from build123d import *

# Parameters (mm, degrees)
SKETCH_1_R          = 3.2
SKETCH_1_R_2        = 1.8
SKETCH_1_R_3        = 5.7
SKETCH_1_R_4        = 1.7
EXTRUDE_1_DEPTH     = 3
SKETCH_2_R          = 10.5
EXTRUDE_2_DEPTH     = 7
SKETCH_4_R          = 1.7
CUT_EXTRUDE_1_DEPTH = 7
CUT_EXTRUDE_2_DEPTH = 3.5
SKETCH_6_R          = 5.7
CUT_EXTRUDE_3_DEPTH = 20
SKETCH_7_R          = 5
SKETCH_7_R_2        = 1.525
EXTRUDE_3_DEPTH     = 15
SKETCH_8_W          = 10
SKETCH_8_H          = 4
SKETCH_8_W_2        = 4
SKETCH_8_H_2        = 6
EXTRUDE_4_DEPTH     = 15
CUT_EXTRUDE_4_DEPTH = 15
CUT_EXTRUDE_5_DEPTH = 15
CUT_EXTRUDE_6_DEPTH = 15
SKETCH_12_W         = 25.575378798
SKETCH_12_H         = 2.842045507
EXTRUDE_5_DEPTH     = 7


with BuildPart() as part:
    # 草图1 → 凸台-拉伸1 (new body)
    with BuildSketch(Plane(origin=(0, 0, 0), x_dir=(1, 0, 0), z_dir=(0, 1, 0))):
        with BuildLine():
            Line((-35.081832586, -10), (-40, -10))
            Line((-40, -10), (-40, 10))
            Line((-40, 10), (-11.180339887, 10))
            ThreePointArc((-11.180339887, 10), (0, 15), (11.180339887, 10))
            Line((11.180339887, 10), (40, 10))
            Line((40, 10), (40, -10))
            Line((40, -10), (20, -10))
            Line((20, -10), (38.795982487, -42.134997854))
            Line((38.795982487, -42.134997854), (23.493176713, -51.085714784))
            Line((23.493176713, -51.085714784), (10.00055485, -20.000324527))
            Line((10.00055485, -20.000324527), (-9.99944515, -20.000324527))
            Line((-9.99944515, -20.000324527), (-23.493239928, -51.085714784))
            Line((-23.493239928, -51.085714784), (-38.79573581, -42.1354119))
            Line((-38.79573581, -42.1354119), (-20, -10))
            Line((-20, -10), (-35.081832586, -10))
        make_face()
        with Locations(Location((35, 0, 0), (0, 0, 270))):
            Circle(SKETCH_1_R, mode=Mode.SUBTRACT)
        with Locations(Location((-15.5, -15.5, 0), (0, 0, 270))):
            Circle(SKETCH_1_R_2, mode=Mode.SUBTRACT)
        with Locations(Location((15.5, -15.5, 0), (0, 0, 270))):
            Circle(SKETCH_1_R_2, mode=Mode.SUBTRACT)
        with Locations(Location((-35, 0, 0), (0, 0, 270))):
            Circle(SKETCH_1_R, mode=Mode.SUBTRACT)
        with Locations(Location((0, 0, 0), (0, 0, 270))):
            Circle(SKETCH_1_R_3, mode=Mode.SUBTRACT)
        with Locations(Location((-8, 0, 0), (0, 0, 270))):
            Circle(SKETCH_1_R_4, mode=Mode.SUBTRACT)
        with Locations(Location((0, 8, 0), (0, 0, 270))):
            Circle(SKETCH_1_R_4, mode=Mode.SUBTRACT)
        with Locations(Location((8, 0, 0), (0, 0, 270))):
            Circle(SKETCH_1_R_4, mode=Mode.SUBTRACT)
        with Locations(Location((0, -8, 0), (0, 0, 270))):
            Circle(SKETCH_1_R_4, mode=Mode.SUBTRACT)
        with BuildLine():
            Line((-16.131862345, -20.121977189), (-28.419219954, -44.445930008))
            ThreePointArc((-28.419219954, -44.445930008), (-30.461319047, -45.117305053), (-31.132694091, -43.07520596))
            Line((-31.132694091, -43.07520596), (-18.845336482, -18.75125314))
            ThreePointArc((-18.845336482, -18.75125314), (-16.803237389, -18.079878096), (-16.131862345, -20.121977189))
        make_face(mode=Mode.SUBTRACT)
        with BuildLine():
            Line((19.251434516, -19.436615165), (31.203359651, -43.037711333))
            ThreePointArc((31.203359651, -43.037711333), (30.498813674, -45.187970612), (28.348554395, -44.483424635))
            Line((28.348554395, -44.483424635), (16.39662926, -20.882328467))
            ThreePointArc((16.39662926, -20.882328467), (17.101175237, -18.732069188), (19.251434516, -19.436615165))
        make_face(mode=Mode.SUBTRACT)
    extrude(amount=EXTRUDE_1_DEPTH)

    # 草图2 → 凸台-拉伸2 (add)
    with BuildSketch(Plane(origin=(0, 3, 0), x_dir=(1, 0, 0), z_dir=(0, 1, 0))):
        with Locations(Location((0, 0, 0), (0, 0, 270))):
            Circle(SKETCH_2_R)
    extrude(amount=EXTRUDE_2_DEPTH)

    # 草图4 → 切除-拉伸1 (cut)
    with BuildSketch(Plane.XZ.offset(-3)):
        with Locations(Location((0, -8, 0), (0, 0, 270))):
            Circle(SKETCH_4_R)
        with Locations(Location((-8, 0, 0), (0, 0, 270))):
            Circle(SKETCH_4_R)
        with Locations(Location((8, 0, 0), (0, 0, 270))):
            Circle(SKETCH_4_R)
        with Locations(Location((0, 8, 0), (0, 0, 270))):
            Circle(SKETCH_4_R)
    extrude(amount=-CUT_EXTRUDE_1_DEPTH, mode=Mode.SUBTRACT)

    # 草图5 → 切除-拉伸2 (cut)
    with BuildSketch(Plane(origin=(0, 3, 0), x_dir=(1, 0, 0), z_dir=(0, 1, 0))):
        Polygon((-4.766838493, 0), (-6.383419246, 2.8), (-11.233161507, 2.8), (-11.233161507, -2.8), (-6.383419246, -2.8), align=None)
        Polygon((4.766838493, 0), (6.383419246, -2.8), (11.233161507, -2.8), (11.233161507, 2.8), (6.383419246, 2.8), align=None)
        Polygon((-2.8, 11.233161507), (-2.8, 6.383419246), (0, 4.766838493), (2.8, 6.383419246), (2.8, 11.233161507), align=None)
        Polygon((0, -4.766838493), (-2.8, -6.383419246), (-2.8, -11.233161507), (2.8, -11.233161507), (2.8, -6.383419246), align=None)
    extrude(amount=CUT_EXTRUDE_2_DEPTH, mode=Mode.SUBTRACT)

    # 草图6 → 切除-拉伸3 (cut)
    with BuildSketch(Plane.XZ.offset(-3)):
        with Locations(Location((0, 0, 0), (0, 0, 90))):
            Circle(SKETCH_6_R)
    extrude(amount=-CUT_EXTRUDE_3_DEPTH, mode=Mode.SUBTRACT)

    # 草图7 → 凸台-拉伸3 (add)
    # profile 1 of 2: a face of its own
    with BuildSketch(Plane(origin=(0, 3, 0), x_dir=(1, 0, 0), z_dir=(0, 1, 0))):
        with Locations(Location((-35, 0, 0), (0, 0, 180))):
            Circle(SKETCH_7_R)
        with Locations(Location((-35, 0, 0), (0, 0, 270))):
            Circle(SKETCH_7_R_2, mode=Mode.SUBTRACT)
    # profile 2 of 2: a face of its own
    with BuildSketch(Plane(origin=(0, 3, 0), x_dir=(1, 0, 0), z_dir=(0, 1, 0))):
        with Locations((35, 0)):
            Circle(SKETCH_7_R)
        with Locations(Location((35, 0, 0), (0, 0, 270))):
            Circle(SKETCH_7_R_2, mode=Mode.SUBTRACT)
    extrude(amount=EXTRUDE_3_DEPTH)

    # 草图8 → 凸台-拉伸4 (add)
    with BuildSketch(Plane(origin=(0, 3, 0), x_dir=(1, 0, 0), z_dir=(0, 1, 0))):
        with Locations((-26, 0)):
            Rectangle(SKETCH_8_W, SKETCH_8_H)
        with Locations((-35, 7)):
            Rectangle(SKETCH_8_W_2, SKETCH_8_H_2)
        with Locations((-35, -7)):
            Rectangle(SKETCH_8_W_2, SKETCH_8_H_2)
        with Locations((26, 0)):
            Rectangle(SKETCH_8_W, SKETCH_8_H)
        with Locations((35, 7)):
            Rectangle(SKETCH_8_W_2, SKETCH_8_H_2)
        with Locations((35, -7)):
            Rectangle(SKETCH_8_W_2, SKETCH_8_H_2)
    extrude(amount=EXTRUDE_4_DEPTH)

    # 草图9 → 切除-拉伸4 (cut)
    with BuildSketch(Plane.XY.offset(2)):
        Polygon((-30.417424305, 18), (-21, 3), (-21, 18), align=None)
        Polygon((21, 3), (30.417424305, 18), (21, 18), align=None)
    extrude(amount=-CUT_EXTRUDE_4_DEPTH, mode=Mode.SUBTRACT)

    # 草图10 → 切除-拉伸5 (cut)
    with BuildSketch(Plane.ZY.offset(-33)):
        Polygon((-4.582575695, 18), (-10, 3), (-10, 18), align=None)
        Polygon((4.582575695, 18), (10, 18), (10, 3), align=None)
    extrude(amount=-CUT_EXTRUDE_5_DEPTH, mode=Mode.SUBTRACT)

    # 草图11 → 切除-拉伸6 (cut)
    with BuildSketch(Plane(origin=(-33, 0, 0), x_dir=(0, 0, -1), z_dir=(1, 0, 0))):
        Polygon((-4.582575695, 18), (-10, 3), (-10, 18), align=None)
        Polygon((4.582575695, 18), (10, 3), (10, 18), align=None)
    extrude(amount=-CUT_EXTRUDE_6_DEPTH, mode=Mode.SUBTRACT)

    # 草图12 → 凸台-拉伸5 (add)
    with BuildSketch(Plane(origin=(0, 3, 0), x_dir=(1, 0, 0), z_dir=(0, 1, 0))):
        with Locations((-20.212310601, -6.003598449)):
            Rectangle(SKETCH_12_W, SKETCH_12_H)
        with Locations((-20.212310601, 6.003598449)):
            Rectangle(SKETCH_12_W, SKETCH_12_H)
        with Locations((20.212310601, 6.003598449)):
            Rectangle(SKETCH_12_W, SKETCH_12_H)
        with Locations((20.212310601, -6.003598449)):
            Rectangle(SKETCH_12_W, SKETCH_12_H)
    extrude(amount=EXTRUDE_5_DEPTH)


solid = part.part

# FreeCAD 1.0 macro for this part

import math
import FreeCAD as App
import Part
import Sketcher
from FreeCAD import Vector
Q = App.Units.Quantity

doc = App.newDocument("Part")
params = doc.addObject("Spreadsheet::Sheet", "Params")
for row, (alias, value) in enumerate([
    ("sketch1_radius", "15 mm"),
    ("sketch1_diameter", "3.6 mm"),
    ("sketch1_diameter2", "3.4 mm"),
    ("sketch1_diameter3", "6.4 mm"),
    ("sketch1_diameter4", "11.4 mm"),
    ("pad1_length", "3 mm"),
    ("sketch2_diameter", "21 mm"),
    ("pad2_length", "7 mm"),
    ("sketch3_diameter", "3.4 mm"),
    ("pocket1_length", "7 mm"),
    ("sketch4_width", "5.6 mm"),
    ("pocket2_length", "3.5 mm"),
    ("sketch5_diameter", "11.4 mm"),
    ("pocket3_length", "20 mm"),
    ("sketch6_diameter", "10 mm"),
    ("sketch6_diameter2", "3.05 mm"),
    ("pad3_length", "15 mm"),
    ("sketch7_width", "10 mm"),
    ("sketch7_width2", "4 mm"),
    ("sketch7_height", "6 mm"),
    ("pad4_length", "15 mm"),
    ("sketch8_height", "15 mm"),
    ("pocket4_length", "15 mm"),
    ("sketch9_width", "15 mm"),
    ("pocket5_length", "15 mm"),
    ("sketch10_width", "15 mm"),
    ("pocket6_length", "15 mm"),
    ("pad5_length", "7 mm"),
], start=1):
    params.set(f"A{row}", alias)
    params.set(f"B{row}", "=" + value)
    params.setAlias(f"B{row}", alias)

body = doc.addObject("PartDesign::Body", "Body")

sketch1 = doc.addObject("Sketcher::SketchObject", "Sketch")
body.addObject(sketch1)
sketch1.AttachmentSupport = (doc.XZ_Plane, [""])
sketch1.MapMode = "FlatFace"
sketch1.addGeometry(Part.LineSegment(Vector(-40, -10, 0), Vector(-40, 10, 0)), False)
sketch1.addGeometry(Part.LineSegment(Vector(-40, 10, 0), Vector(-20, 10, 0)), False)
sketch1.addGeometry(Part.LineSegment(Vector(-20, 10, 0), Vector(-38.8, 42.1, 0)), False)
sketch1.addGeometry(Part.LineSegment(Vector(-38.8, 42.1, 0), Vector(-23.5, 51.1, 0)), False)
sketch1.addGeometry(Part.LineSegment(Vector(-23.5, 51.1, 0), Vector(-10, 20, 0)), False)
sketch1.addGeometry(Part.LineSegment(Vector(-10, 20, 0), Vector(10, 20, 0)), False)
sketch1.addGeometry(Part.LineSegment(Vector(10, 20, 0), Vector(23.5, 51.1, 0)), False)
sketch1.addGeometry(Part.LineSegment(Vector(23.5, 51.1, 0), Vector(38.8, 42.1, 0)), False)
sketch1.addGeometry(Part.LineSegment(Vector(38.8, 42.1, 0), Vector(20, 10, 0)), False)
sketch1.addGeometry(Part.LineSegment(Vector(20, 10, 0), Vector(40, 10, 0)), False)
sketch1.addGeometry(Part.LineSegment(Vector(40, 10, 0), Vector(40, -10, 0)), False)
sketch1.addGeometry(Part.LineSegment(Vector(40, -10, 0), Vector(11.2, -10, 0)), False)
sketch1.addGeometry(Part.ArcOfCircle(Part.Circle(Vector(0, 0, 0), Vector(0, 0, 1), 15), math.radians(-138), math.radians(-42)), False)
sketch1.addGeometry(Part.LineSegment(Vector(-11.2, -10, 0), Vector(-40, -10, 0)), False)
sketch1.addGeometry(Part.LineSegment(Vector(19.3, 19.4, 0), Vector(31.2, 43, 0)), False)
sketch1.addGeometry(Part.ArcOfCircle(Part.Circle(Vector(29.8, 43.8, 0), Vector(0, 0, 1), 1.6), math.radians(-27), math.radians(153)), False)
sketch1.addGeometry(Part.LineSegment(Vector(28.3, 44.5, 0), Vector(16.4, 20.9, 0)), False)
sketch1.addGeometry(Part.ArcOfCircle(Part.Circle(Vector(17.8, 20.2, 0), Vector(0, 0, 1), 1.6), math.radians(153), math.radians(333)), False)
sketch1.addGeometry(Part.LineSegment(Vector(-16.1, 20.1, 0), Vector(-28.4, 44.4, 0)), False)
sketch1.addGeometry(Part.ArcOfCircle(Part.Circle(Vector(-29.8, 43.8, 0), Vector(0, 0, 1), 1.5), math.radians(27), math.radians(207)), False)
sketch1.addGeometry(Part.LineSegment(Vector(-31.1, 43.1, 0), Vector(-18.8, 18.8, 0)), False)
sketch1.addGeometry(Part.ArcOfCircle(Part.Circle(Vector(-17.5, 19.4, 0), Vector(0, 0, 1), 1.5), math.radians(-153), math.radians(27)), False)
sketch1.addGeometry(Part.Circle(Vector(15.5, 15.5, 0), Vector(0, 0, 1), 1.8), False)
sketch1.addGeometry(Part.Circle(Vector(0, 8, 0), Vector(0, 0, 1), 1.7), False)
sketch1.addGeometry(Part.Circle(Vector(35, 0, 0), Vector(0, 0, 1), 3.2), False)
sketch1.addGeometry(Part.Circle(Vector(8, 0, 0), Vector(0, 0, 1), 1.7), False)
sketch1.addGeometry(Part.Circle(Vector(0, 0, 0), Vector(0, 0, 1), 5.7), False)
sketch1.addGeometry(Part.Circle(Vector(0, -8, 0), Vector(0, 0, 1), 1.7), False)
sketch1.addGeometry(Part.Circle(Vector(-15.5, 15.5, 0), Vector(0, 0, 1), 1.8), False)
sketch1.addGeometry(Part.Circle(Vector(-8, 0, 0), Vector(0, 0, 1), 1.7), False)
sketch1.addGeometry(Part.Circle(Vector(-35, 0, 0), Vector(0, 0, 1), 3.2), False)
sketch1.addConstraint(Sketcher.Constraint("Coincident", 0, 2, 1, 1))
sketch1.addConstraint(Sketcher.Constraint("Coincident", 1, 2, 2, 1))
sketch1.addConstraint(Sketcher.Constraint("Coincident", 2, 2, 3, 1))
sketch1.addConstraint(Sketcher.Constraint("Coincident", 3, 2, 4, 1))
sketch1.addConstraint(Sketcher.Constraint("Coincident", 4, 2, 5, 1))
sketch1.addConstraint(Sketcher.Constraint("Coincident", 5, 2, 6, 1))
sketch1.addConstraint(Sketcher.Constraint("Coincident", 6, 2, 7, 1))
sketch1.addConstraint(Sketcher.Constraint("Coincident", 7, 2, 8, 1))
sketch1.addConstraint(Sketcher.Constraint("Coincident", 8, 2, 9, 1))
sketch1.addConstraint(Sketcher.Constraint("Coincident", 9, 2, 10, 1))
sketch1.addConstraint(Sketcher.Constraint("Coincident", 10, 2, 11, 1))
sketch1.addConstraint(Sketcher.Constraint("Coincident", 11, 2, 12, 2))
sketch1.addConstraint(Sketcher.Constraint("Coincident", 12, 1, 13, 1))
sketch1.addConstraint(Sketcher.Constraint("Coincident", 13, 2, 0, 1))
sketch1.addConstraint(Sketcher.Constraint("Tangent", 14, 2, 15, 1))
sketch1.addConstraint(Sketcher.Constraint("Tangent", 15, 2, 16, 1))
sketch1.addConstraint(Sketcher.Constraint("Tangent", 16, 2, 17, 1))
sketch1.addConstraint(Sketcher.Constraint("Tangent", 17, 2, 14, 1))
sketch1.addConstraint(Sketcher.Constraint("Tangent", 18, 2, 19, 1))
sketch1.addConstraint(Sketcher.Constraint("Tangent", 19, 2, 20, 1))
sketch1.addConstraint(Sketcher.Constraint("Tangent", 20, 2, 21, 1))
sketch1.addConstraint(Sketcher.Constraint("Tangent", 21, 2, 18, 1))
sketch1.addConstraint(Sketcher.Constraint("Vertical", 0))
sketch1.addConstraint(Sketcher.Constraint("Horizontal", 1))
sketch1.addConstraint(Sketcher.Constraint("Horizontal", 5))
sketch1.addConstraint(Sketcher.Constraint("Horizontal", 9))
sketch1.addConstraint(Sketcher.Constraint("Vertical", 10))
sketch1.addConstraint(Sketcher.Constraint("Horizontal", 11))
sketch1.addConstraint(Sketcher.Constraint("Horizontal", 13))
sketch1.addConstraint(Sketcher.Constraint("Coincident", 12, 3, -1, 1))
sketch1.addConstraint(Sketcher.Constraint("Coincident", 26, 3, -1, 1))
sketch1.addConstraint(Sketcher.Constraint("Equal", 15, 17))
sketch1.addConstraint(Sketcher.Constraint("Equal", 19, 21))
sketch1.addConstraint(Sketcher.Constraint("Equal", 23, 25))
sketch1.addConstraint(Sketcher.Constraint("Equal", 25, 27))
sketch1.addConstraint(Sketcher.Constraint("Equal", 22, 28))
sketch1.addConstraint(Sketcher.Constraint("Equal", 27, 29))
sketch1.addConstraint(Sketcher.Constraint("Equal", 24, 30))
sketch1.addConstraint(Sketcher.Constraint("Symmetric", 23, 3, 27, 3, -1, 1))
sketch1.addConstraint(Sketcher.Constraint("Symmetric", 25, 3, 29, 3, -1, 1))
sketch1.addConstraint(Sketcher.Constraint("Symmetric", 24, 3, 30, 3, -1, 1))
sketch1.addConstraint(Sketcher.Constraint("Symmetric", 0, 2, 10, 2, -1, 1))
sketch1.addConstraint(Sketcher.Constraint("Symmetric", 15, 3, 19, 3, -2))
sketch1.addConstraint(Sketcher.Constraint("Symmetric", 22, 3, 28, 3, -2))
sketch1.addConstraint(Sketcher.Constraint("Symmetric", 1, 2, 8, 2, -2))
sketch1.addConstraint(Sketcher.Constraint("PointOnObject", 23, 3, -2))
sketch1.addConstraint(Sketcher.Constraint("PointOnObject", 24, 3, -1))
sketch1.addConstraint(Sketcher.Constraint("PointOnObject", 25, 3, -1))
sketch1.addConstraint(Sketcher.Constraint("Perpendicular", 2, 3))
sketch1.addConstraint(Sketcher.Constraint("Perpendicular", 7, 8))
sketch1.addConstraint(Sketcher.Constraint("Horizontal", 3, 2, 6, 2))
sketch1.addConstraint(Sketcher.Constraint("Horizontal", 11, 2, 12, 1))
sketch1.addConstraint(Sketcher.Constraint("Horizontal", 21, 3, 17, 2))
sketch1.addConstraint(Sketcher.Constraint("Equal", 1, 5))
sketch1.addConstraint(Sketcher.Constraint("Equal", 9, 0))
sketch1.addConstraint(Sketcher.Constraint("Radius", 12, Q("15 mm")))
sketch1.addConstraint(Sketcher.Constraint("Diameter", 22, Q("3.6 mm")))
sketch1.addConstraint(Sketcher.Constraint("Diameter", 23, Q("3.4 mm")))
sketch1.addConstraint(Sketcher.Constraint("Diameter", 24, Q("6.4 mm")))
sketch1.addConstraint(Sketcher.Constraint("Diameter", 26, Q("11.4 mm")))
sketch1.addConstraint(Sketcher.Constraint("Radius", 15, Q("1.6 mm")))
sketch1.addConstraint(Sketcher.Constraint("DistanceX", 1, 1, 1, 2, Q("20 mm")))
sketch1.addConstraint(Sketcher.Constraint("DistanceY", -1, 1, 23, 3, Q("8 mm")))
sketch1.addConstraint(Sketcher.Constraint("DistanceX", -1, 1, 24, 3, Q("35 mm")))
sketch1.addConstraint(Sketcher.Constraint("DistanceX", -1, 1, 25, 3, Q("8 mm")))
sketch1.addConstraint(Sketcher.Constraint("DistanceX", 0, 2, -1, 1, Q("40 mm")))
sketch1.addConstraint(Sketcher.Constraint("DistanceX", -1, 1, 22, 3, Q("15.5 mm")))
sketch1.addConstraint(Sketcher.Constraint("DistanceY", -1, 1, 22, 3, Q("15.5 mm")))
sketch1.addConstraint(Sketcher.Constraint("Radius", 19, Q("1.520019 mm")))
sketch1.addConstraint(Sketcher.Constraint("DistanceX", 21, 3, -1, 1, Q("17.488599 mm")))
sketch1.addConstraint(Sketcher.Constraint("DistanceY", 21, 3, 3, 2, Q("31.6491 mm")))
sketch1.addConstraint(Sketcher.Constraint("Distance", 7, Q("17.72826 mm")))
sketch1.addConstraint(Sketcher.Constraint("Distance", 8, Q("37.22831 mm")))
sketch1.addConstraint(Sketcher.Constraint("Distance", 18, Q("27.251309 mm")))
sketch1.addConstraint(Sketcher.Constraint("DistanceX", -1, 1, 17, 3, Q("17.824032 mm")))
sketch1.addConstraint(Sketcher.Constraint("DistanceY", -1, 1, 17, 3, Q("20.159472 mm")))
sketch1.addConstraint(Sketcher.Constraint("DistanceY", -1, 1, 2, 2, Q("42.135412 mm")))
sketch1.addConstraint(Sketcher.Constraint("DistanceX", 3, 2, -1, 1, Q("23.49324 mm")))
sketch1.addConstraint(Sketcher.Constraint("DistanceX", -1, 1, 14, 2, Q("31.20336 mm")))
sketch1.addConstraint(Sketcher.Constraint("DistanceY", 21, 3, 4, 2, Q("0.563709 mm")))
sketch1.addConstraint(Sketcher.Constraint("DistanceX", 5, 2, 6, 2, Q("13.492622 mm")))
sketch1.setExpression("Constraints[55]", "Params.sketch1_radius")
sketch1.setExpression("Constraints[56]", "Params.sketch1_diameter")
sketch1.setExpression("Constraints[57]", "Params.sketch1_diameter2")
sketch1.setExpression("Constraints[58]", "Params.sketch1_diameter3")
sketch1.setExpression("Constraints[59]", "Params.sketch1_diameter4")
pad1 = doc.addObject("PartDesign::Pad", "Pad")
body.addObject(pad1)
pad1.Profile = sketch1
pad1.setExpression("Length", "Params.pad1_length")
pad1.Reversed = True

sketch2 = doc.addObject("Sketcher::SketchObject", "Sketch001")
body.addObject(sketch2)
sketch2.AttachmentSupport = (doc.XZ_Plane, [""])
sketch2.MapMode = "FlatFace"
sketch2.AttachmentOffset = App.Placement(Vector(0, 0, -3), App.Rotation())
sketch2.addGeometry(Part.Circle(Vector(0, 0, 0), Vector(0, 0, 1), 10), False)
sketch2.addConstraint(Sketcher.Constraint("Coincident", 0, 3, -1, 1))
sketch2.addConstraint(Sketcher.Constraint("Diameter", 0, Q("21 mm")))
sketch2.setExpression("Constraints[1]", "Params.sketch2_diameter")
pad2 = doc.addObject("PartDesign::Pad", "Pad001")
body.addObject(pad2)
pad2.Profile = sketch2
pad2.setExpression("Length", "Params.pad2_length")
pad2.Reversed = True

sketch3 = doc.addObject("Sketcher::SketchObject", "Sketch002")
body.addObject(sketch3)
sketch3.AttachmentSupport = (doc.XZ_Plane, [""])
sketch3.MapMode = "FlatFace"
sketch3.AttachmentOffset = App.Placement(Vector(0, 0, -3), App.Rotation())
sketch3.addGeometry(Part.Circle(Vector(0, -8, 0), Vector(0, 0, 1), 1.7), False)
sketch3.addGeometry(Part.Circle(Vector(-8, 0, 0), Vector(0, 0, 1), 1.7), False)
sketch3.addGeometry(Part.Circle(Vector(8, 0, 0), Vector(0, 0, 1), 1.7), False)
sketch3.addGeometry(Part.Circle(Vector(0, 8, 0), Vector(0, 0, 1), 1.7), False)
sketch3.addConstraint(Sketcher.Constraint("Equal", 0, 1))
sketch3.addConstraint(Sketcher.Constraint("Equal", 1, 2))
sketch3.addConstraint(Sketcher.Constraint("Equal", 2, 3))
sketch3.addConstraint(Sketcher.Constraint("Symmetric", 1, 3, 2, 3, -1, 1))
sketch3.addConstraint(Sketcher.Constraint("Symmetric", 0, 3, 3, 3, -1, 1))
sketch3.addConstraint(Sketcher.Constraint("PointOnObject", 0, 3, -2))
sketch3.addConstraint(Sketcher.Constraint("PointOnObject", 1, 3, -1))
sketch3.addConstraint(Sketcher.Constraint("Diameter", 0, Q("3.4 mm")))
sketch3.addConstraint(Sketcher.Constraint("DistanceY", 0, 3, -1, 1, Q("8 mm")))
sketch3.addConstraint(Sketcher.Constraint("DistanceX", 1, 3, -1, 1, Q("8 mm")))
sketch3.setExpression("Constraints[7]", "Params.sketch3_diameter")
pocket1 = doc.addObject("PartDesign::Pocket", "Pocket")
body.addObject(pocket1)
pocket1.Profile = sketch3
pocket1.setExpression("Length", "Params.pocket1_length")

sketch4 = doc.addObject("Sketcher::SketchObject", "Sketch003")
body.addObject(sketch4)
sketch4.AttachmentSupport = (doc.XZ_Plane, [""])
sketch4.MapMode = "FlatFace"
sketch4.AttachmentOffset = App.Placement(Vector(0, 0, -3), App.Rotation())
sketch4.addGeometry(Part.LineSegment(Vector(-4.8, 0, 0), Vector(-6.4, -2.8, 0)), False)
sketch4.addGeometry(Part.LineSegment(Vector(-6.4, -2.8, 0), Vector(-11.2, -2.8, 0)), False)
sketch4.addGeometry(Part.LineSegment(Vector(-11.2, -2.8, 0), Vector(-11.2, 2.8, 0)), False)
sketch4.addGeometry(Part.LineSegment(Vector(-11.2, 2.8, 0), Vector(-6.4, 2.8, 0)), False)
sketch4.addGeometry(Part.LineSegment(Vector(-6.4, 2.8, 0), Vector(-4.8, 0, 0)), False)
sketch4.addGeometry(Part.LineSegment(Vector(4.8, 0, 0), Vector(6.4, 2.8, 0)), False)
sketch4.addGeometry(Part.LineSegment(Vector(6.4, 2.8, 0), Vector(11.2, 2.8, 0)), False)
sketch4.addGeometry(Part.LineSegment(Vector(11.2, 2.8, 0), Vector(11.2, -2.8, 0)), False)
sketch4.addGeometry(Part.LineSegment(Vector(11.2, -2.8, 0), Vector(6.4, -2.8, 0)), False)
sketch4.addGeometry(Part.LineSegment(Vector(6.4, -2.8, 0), Vector(4.8, 0, 0)), False)
sketch4.addGeometry(Part.LineSegment(Vector(-2.8, -11.2, 0), Vector(-2.8, -6.4, 0)), False)
sketch4.addGeometry(Part.LineSegment(Vector(-2.8, -6.4, 0), Vector(0, -4.8, 0)), False)
sketch4.addGeometry(Part.LineSegment(Vector(0, -4.8, 0), Vector(2.8, -6.4, 0)), False)
sketch4.addGeometry(Part.LineSegment(Vector(2.8, -6.4, 0), Vector(2.8, -11.2, 0)), False)
sketch4.addGeometry(Part.LineSegment(Vector(2.8, -11.2, 0), Vector(-2.8, -11.2, 0)), False)
sketch4.addGeometry(Part.LineSegment(Vector(0, 4.8, 0), Vector(-2.8, 6.4, 0)), False)
sketch4.addGeometry(Part.LineSegment(Vector(-2.8, 6.4, 0), Vector(-2.8, 11.2, 0)), False)
sketch4.addGeometry(Part.LineSegment(Vector(-2.8, 11.2, 0), Vector(2.8, 11.2, 0)), False)
sketch4.addGeometry(Part.LineSegment(Vector(2.8, 11.2, 0), Vector(2.8, 6.4, 0)), False)
sketch4.addGeometry(Part.LineSegment(Vector(2.8, 6.4, 0), Vector(0, 4.8, 0)), False)
sketch4.addConstraint(Sketcher.Constraint("Coincident", 0, 2, 1, 1))
sketch4.addConstraint(Sketcher.Constraint("Coincident", 1, 2, 2, 1))
sketch4.addConstraint(Sketcher.Constraint("Coincident", 2, 2, 3, 1))
sketch4.addConstraint(Sketcher.Constraint("Coincident", 3, 2, 4, 1))
sketch4.addConstraint(Sketcher.Constraint("Coincident", 4, 2, 0, 1))
sketch4.addConstraint(Sketcher.Constraint("Coincident", 5, 2, 6, 1))
sketch4.addConstraint(Sketcher.Constraint("Coincident", 6, 2, 7, 1))
sketch4.addConstraint(Sketcher.Constraint("Coincident", 7, 2, 8, 1))
sketch4.addConstraint(Sketcher.Constraint("Coincident", 8, 2, 9, 1))
sketch4.addConstraint(Sketcher.Constraint("Coincident", 9, 2, 5, 1))
sketch4.addConstraint(Sketcher.Constraint("Coincident", 10, 2, 11, 1))
sketch4.addConstraint(Sketcher.Constraint("Coincident", 11, 2, 12, 1))
sketch4.addConstraint(Sketcher.Constraint("Coincident", 12, 2, 13, 1))
sketch4.addConstraint(Sketcher.Constraint("Coincident", 13, 2, 14, 1))
sketch4.addConstraint(Sketcher.Constraint("Coincident", 14, 2, 10, 1))
sketch4.addConstraint(Sketcher.Constraint("Coincident", 15, 2, 16, 1))
sketch4.addConstraint(Sketcher.Constraint("Coincident", 16, 2, 17, 1))
sketch4.addConstraint(Sketcher.Constraint("Coincident", 17, 2, 18, 1))
sketch4.addConstraint(Sketcher.Constraint("Coincident", 18, 2, 19, 1))
sketch4.addConstraint(Sketcher.Constraint("Coincident", 19, 2, 15, 1))
sketch4.addConstraint(Sketcher.Constraint("Horizontal", 1))
sketch4.addConstraint(Sketcher.Constraint("Vertical", 2))
sketch4.addConstraint(Sketcher.Constraint("Horizontal", 3))
sketch4.addConstraint(Sketcher.Constraint("Horizontal", 6))
sketch4.addConstraint(Sketcher.Constraint("Vertical", 7))
sketch4.addConstraint(Sketcher.Constraint("Horizontal", 8))
sketch4.addConstraint(Sketcher.Constraint("Vertical", 10))
sketch4.addConstraint(Sketcher.Constraint("Vertical", 13))
sketch4.addConstraint(Sketcher.Constraint("Horizontal", 14))
sketch4.addConstraint(Sketcher.Constraint("Vertical", 16))
sketch4.addConstraint(Sketcher.Constraint("Horizontal", 17))
sketch4.addConstraint(Sketcher.Constraint("Vertical", 18))
sketch4.addConstraint(Sketcher.Constraint("Symmetric", 0, 2, 5, 2, -1, 1))
sketch4.addConstraint(Sketcher.Constraint("Symmetric", 2, 2, 7, 2, -1, 1))
sketch4.addConstraint(Sketcher.Constraint("Symmetric", 4, 2, 9, 2, -1, 1))
sketch4.addConstraint(Sketcher.Constraint("Symmetric", 12, 2, 15, 2, -1, 1))
sketch4.addConstraint(Sketcher.Constraint("Symmetric", 14, 2, 17, 2, -1, 1))
sketch4.addConstraint(Sketcher.Constraint("Symmetric", 11, 2, 19, 2, -1, 1))
sketch4.addConstraint(Sketcher.Constraint("Symmetric", 3, 2, 5, 2, -2))
sketch4.addConstraint(Sketcher.Constraint("Symmetric", 10, 2, 12, 2, -2))
sketch4.addConstraint(Sketcher.Constraint("PointOnObject", 4, 2, -1))
sketch4.addConstraint(Sketcher.Constraint("PointOnObject", 11, 2, -2))
sketch4.addConstraint(Sketcher.Constraint("Parallel", 4, 9))
sketch4.addConstraint(Sketcher.Constraint("Perpendicular", 9, 11))
sketch4.addConstraint(Sketcher.Constraint("Parallel", 11, 19))
sketch4.addConstraint(Sketcher.Constraint("Equal", 17, 2))
sketch4.addConstraint(Sketcher.Constraint("Equal", 8, 10))
sketch4.addConstraint(Sketcher.Constraint("Angle", 0, Q("-120 deg")))
sketch4.addConstraint(Sketcher.Constraint("DistanceX", 14, 2, 14, 1, Q("5.6 mm")))
sketch4.addConstraint(Sketcher.Constraint("DistanceX", 4, 2, 6, 2, Q("16 mm")))
sketch4.addConstraint(Sketcher.Constraint("DistanceX", 1, 2, 1, 1, Q("4.849742 mm")))
sketch4.addConstraint(Sketcher.Constraint("DistanceY", 10, 2, -1, 1, Q("6.383419 mm")))
sketch4.setExpression("Constraints[48]", "Params.sketch4_width")
pocket2 = doc.addObject("PartDesign::Pocket", "Pocket001")
body.addObject(pocket2)
pocket2.Profile = sketch4
pocket2.setExpression("Length", "Params.pocket2_length")

sketch5 = doc.addObject("Sketcher::SketchObject", "Sketch004")
body.addObject(sketch5)
sketch5.AttachmentSupport = (doc.XZ_Plane, [""])
sketch5.MapMode = "FlatFace"
sketch5.AttachmentOffset = App.Placement(Vector(0, 0, -3), App.Rotation())
sketch5.addGeometry(Part.Circle(Vector(0, 0, 0), Vector(0, 0, 1), 6), False)
sketch5.addConstraint(Sketcher.Constraint("Coincident", 0, 3, -1, 1))
sketch5.addConstraint(Sketcher.Constraint("Diameter", 0, Q("11.4 mm")))
sketch5.setExpression("Constraints[1]", "Params.sketch5_diameter")
pocket3 = doc.addObject("PartDesign::Pocket", "Pocket002")
body.addObject(pocket3)
pocket3.Profile = sketch5
pocket3.setExpression("Length", "Params.pocket3_length")

sketch6 = doc.addObject("Sketcher::SketchObject", "Sketch005")
body.addObject(sketch6)
sketch6.AttachmentSupport = (doc.XZ_Plane, [""])
sketch6.MapMode = "FlatFace"
sketch6.AttachmentOffset = App.Placement(Vector(0, 0, -3), App.Rotation())
sketch6.addGeometry(Part.Circle(Vector(-35, 0, 0), Vector(0, 0, 1), 5), False)
sketch6.addGeometry(Part.Circle(Vector(-35, 0, 0), Vector(0, 0, 1), 1.5), False)
sketch6.addGeometry(Part.Circle(Vector(35, 0, 0), Vector(0, 0, 1), 5), False)
sketch6.addGeometry(Part.Circle(Vector(35, 0, 0), Vector(0, 0, 1), 1.5), False)
sketch6.addConstraint(Sketcher.Constraint("Coincident", 1, 3, 0, 3))
sketch6.addConstraint(Sketcher.Constraint("Coincident", 3, 3, 2, 3))
sketch6.addConstraint(Sketcher.Constraint("Equal", 0, 2))
sketch6.addConstraint(Sketcher.Constraint("Equal", 1, 3))
sketch6.addConstraint(Sketcher.Constraint("Symmetric", 0, 3, 2, 3, -1, 1))
sketch6.addConstraint(Sketcher.Constraint("PointOnObject", 0, 3, -1))
sketch6.addConstraint(Sketcher.Constraint("Diameter", 0, Q("10 mm")))
sketch6.addConstraint(Sketcher.Constraint("Diameter", 1, Q("3.05 mm")))
sketch6.addConstraint(Sketcher.Constraint("DistanceX", 0, 3, -1, 1, Q("35 mm")))
sketch6.setExpression("Constraints[6]", "Params.sketch6_diameter")
sketch6.setExpression("Constraints[7]", "Params.sketch6_diameter2")
pad3 = doc.addObject("PartDesign::Pad", "Pad002")
body.addObject(pad3)
pad3.Profile = sketch6
pad3.setExpression("Length", "Params.pad3_length")
pad3.Reversed = True

sketch7 = doc.addObject("Sketcher::SketchObject", "Sketch006")
body.addObject(sketch7)
sketch7.AttachmentSupport = (doc.XZ_Plane, [""])
sketch7.MapMode = "FlatFace"
sketch7.AttachmentOffset = App.Placement(Vector(0, 0, -3), App.Rotation())
sketch7.addGeometry(Part.LineSegment(Vector(-31, -2, 0), Vector(-31, 2, 0)), False)
sketch7.addGeometry(Part.LineSegment(Vector(-31, 2, 0), Vector(-21, 2, 0)), False)
sketch7.addGeometry(Part.LineSegment(Vector(-21, 2, 0), Vector(-21, -2, 0)), False)
sketch7.addGeometry(Part.LineSegment(Vector(-21, -2, 0), Vector(-31, -2, 0)), False)
sketch7.addGeometry(Part.LineSegment(Vector(-37, -10, 0), Vector(-37, -4, 0)), False)
sketch7.addGeometry(Part.LineSegment(Vector(-37, -4, 0), Vector(-33, -4, 0)), False)
sketch7.addGeometry(Part.LineSegment(Vector(-33, -4, 0), Vector(-33, -10, 0)), False)
sketch7.addGeometry(Part.LineSegment(Vector(-33, -10, 0), Vector(-37, -10, 0)), False)
sketch7.addGeometry(Part.LineSegment(Vector(-37, 4, 0), Vector(-37, 10, 0)), False)
sketch7.addGeometry(Part.LineSegment(Vector(-37, 10, 0), Vector(-33, 10, 0)), False)
sketch7.addGeometry(Part.LineSegment(Vector(-33, 10, 0), Vector(-33, 4, 0)), False)
sketch7.addGeometry(Part.LineSegment(Vector(-33, 4, 0), Vector(-37, 4, 0)), False)
sketch7.addGeometry(Part.LineSegment(Vector(21, -2, 0), Vector(21, 2, 0)), False)
sketch7.addGeometry(Part.LineSegment(Vector(21, 2, 0), Vector(31, 2, 0)), False)
sketch7.addGeometry(Part.LineSegment(Vector(31, 2, 0), Vector(31, -2, 0)), False)
sketch7.addGeometry(Part.LineSegment(Vector(31, -2, 0), Vector(21, -2, 0)), False)
sketch7.addGeometry(Part.LineSegment(Vector(33, -10, 0), Vector(33, -4, 0)), False)
sketch7.addGeometry(Part.LineSegment(Vector(33, -4, 0), Vector(37, -4, 0)), False)
sketch7.addGeometry(Part.LineSegment(Vector(37, -4, 0), Vector(37, -10, 0)), False)
sketch7.addGeometry(Part.LineSegment(Vector(37, -10, 0), Vector(33, -10, 0)), False)
sketch7.addGeometry(Part.LineSegment(Vector(33, 4, 0), Vector(33, 10, 0)), False)
sketch7.addGeometry(Part.LineSegment(Vector(33, 10, 0), Vector(37, 10, 0)), False)
sketch7.addGeometry(Part.LineSegment(Vector(37, 10, 0), Vector(37, 4, 0)), False)
sketch7.addGeometry(Part.LineSegment(Vector(37, 4, 0), Vector(33, 4, 0)), False)
sketch7.addConstraint(Sketcher.Constraint("Coincident", 0, 2, 1, 1))
sketch7.addConstraint(Sketcher.Constraint("Coincident", 1, 2, 2, 1))
sketch7.addConstraint(Sketcher.Constraint("Coincident", 2, 2, 3, 1))
sketch7.addConstraint(Sketcher.Constraint("Coincident", 3, 2, 0, 1))
sketch7.addConstraint(Sketcher.Constraint("Coincident", 4, 2, 5, 1))
sketch7.addConstraint(Sketcher.Constraint("Coincident", 5, 2, 6, 1))
sketch7.addConstraint(Sketcher.Constraint("Coincident", 6, 2, 7, 1))
sketch7.addConstraint(Sketcher.Constraint("Coincident", 7, 2, 4, 1))
sketch7.addConstraint(Sketcher.Constraint("Coincident", 8, 2, 9, 1))
sketch7.addConstraint(Sketcher.Constraint("Coincident", 9, 2, 10, 1))
sketch7.addConstraint(Sketcher.Constraint("Coincident", 10, 2, 11, 1))
sketch7.addConstraint(Sketcher.Constraint("Coincident", 11, 2, 8, 1))
sketch7.addConstraint(Sketcher.Constraint("Coincident", 12, 2, 13, 1))
sketch7.addConstraint(Sketcher.Constraint("Coincident", 13, 2, 14, 1))
sketch7.addConstraint(Sketcher.Constraint("Coincident", 14, 2, 15, 1))
sketch7.addConstraint(Sketcher.Constraint("Coincident", 15, 2, 12, 1))
sketch7.addConstraint(Sketcher.Constraint("Coincident", 16, 2, 17, 1))
sketch7.addConstraint(Sketcher.Constraint("Coincident", 17, 2, 18, 1))
sketch7.addConstraint(Sketcher.Constraint("Coincident", 18, 2, 19, 1))
sketch7.addConstraint(Sketcher.Constraint("Coincident", 19, 2, 16, 1))
sketch7.addConstraint(Sketcher.Constraint("Coincident", 20, 2, 21, 1))
sketch7.addConstraint(Sketcher.Constraint("Coincident", 21, 2, 22, 1))
sketch7.addConstraint(Sketcher.Constraint("Coincident", 22, 2, 23, 1))
sketch7.addConstraint(Sketcher.Constraint("Coincident", 23, 2, 20, 1))
sketch7.addConstraint(Sketcher.Constraint("Vertical", 0))
sketch7.addConstraint(Sketcher.Constraint("Horizontal", 1))
sketch7.addConstraint(Sketcher.Constraint("Vertical", 2))
sketch7.addConstraint(Sketcher.Constraint("Horizontal", 3))
sketch7.addConstraint(Sketcher.Constraint("Vertical", 4))
sketch7.addConstraint(Sketcher.Constraint("Horizontal", 5))
sketch7.addConstraint(Sketcher.Constraint("Vertical", 6))
sketch7.addConstraint(Sketcher.Constraint("Horizontal", 7))
sketch7.addConstraint(Sketcher.Constraint("Vertical", 8))
sketch7.addConstraint(Sketcher.Constraint("Horizontal", 9))
sketch7.addConstraint(Sketcher.Constraint("Vertical", 10))
sketch7.addConstraint(Sketcher.Constraint("Horizontal", 11))
sketch7.addConstraint(Sketcher.Constraint("Vertical", 12))
sketch7.addConstraint(Sketcher.Constraint("Horizontal", 13))
sketch7.addConstraint(Sketcher.Constraint("Vertical", 14))
sketch7.addConstraint(Sketcher.Constraint("Horizontal", 15))
sketch7.addConstraint(Sketcher.Constraint("Vertical", 16))
sketch7.addConstraint(Sketcher.Constraint("Horizontal", 17))
sketch7.addConstraint(Sketcher.Constraint("Vertical", 18))
sketch7.addConstraint(Sketcher.Constraint("Horizontal", 19))
sketch7.addConstraint(Sketcher.Constraint("Vertical", 20))
sketch7.addConstraint(Sketcher.Constraint("Horizontal", 21))
sketch7.addConstraint(Sketcher.Constraint("Vertical", 22))
sketch7.addConstraint(Sketcher.Constraint("Horizontal", 23))
sketch7.addConstraint(Sketcher.Constraint("Symmetric", 2, 2, 12, 2, -1, 1))
sketch7.addConstraint(Sketcher.Constraint("Symmetric", 0, 2, 14, 2, -1, 1))
sketch7.addConstraint(Sketcher.Constraint("Symmetric", 10, 2, 16, 2, -1, 1))
sketch7.addConstraint(Sketcher.Constraint("Symmetric", 8, 2, 18, 2, -1, 1))
sketch7.addConstraint(Sketcher.Constraint("Symmetric", 6, 2, 20, 2, -1, 1))
sketch7.addConstraint(Sketcher.Constraint("Symmetric", 4, 2, 22, 2, -1, 1))
sketch7.addConstraint(Sketcher.Constraint("Symmetric", 5, 2, 16, 2, -2))
sketch7.addConstraint(Sketcher.Constraint("Symmetric", 7, 2, 18, 2, -2))
sketch7.addConstraint(Sketcher.Constraint("Horizontal", 1, 2, 12, 2))
sketch7.addConstraint(Sketcher.Constraint("Equal", 23, 0))
sketch7.addConstraint(Sketcher.Constraint("DistanceX", 1, 1, 1, 2, Q("10 mm")))
sketch7.addConstraint(Sketcher.Constraint("DistanceX", 5, 1, 5, 2, Q("4 mm")))
sketch7.addConstraint(Sketcher.Constraint("DistanceY", 4, 1, 4, 2, Q("6 mm")))
sketch7.addConstraint(Sketcher.Constraint("DistanceX", 0, 2, -1, 1, Q("31 mm")))
sketch7.addConstraint(Sketcher.Constraint("DistanceX", 4, 2, -1, 1, Q("37 mm")))
sketch7.addConstraint(Sketcher.Constraint("DistanceY", 4, 2, -1, 1, Q("4 mm")))
sketch7.setExpression("Constraints[58]", "Params.sketch7_width")
sketch7.setExpression("Constraints[59]", "Params.sketch7_width2")
sketch7.setExpression("Constraints[60]", "Params.sketch7_height")
pad4 = doc.addObject("PartDesign::Pad", "Pad003")
body.addObject(pad4)
pad4.Profile = sketch7
pad4.setExpression("Length", "Params.pad4_length")
pad4.Reversed = True

sketch8 = doc.addObject("Sketcher::SketchObject", "Sketch007")
body.addObject(sketch8)
sketch8.AttachmentSupport = (doc.XY_Plane, [""])
sketch8.MapMode = "FlatFace"
sketch8.AttachmentOffset = App.Placement(Vector(0, 0, 2), App.Rotation())
sketch8.addGeometry(Part.LineSegment(Vector(-30, 18, 0), Vector(-21, 3, 0)), False)
sketch8.addGeometry(Part.LineSegment(Vector(-21, 3, 0), Vector(-21, 18, 0)), False)
sketch8.addGeometry(Part.LineSegment(Vector(-21, 18, 0), Vector(-30, 18, 0)), False)
sketch8.addGeometry(Part.LineSegment(Vector(21, 3, 0), Vector(30, 18, 0)), False)
sketch8.addGeometry(Part.LineSegment(Vector(30, 18, 0), Vector(21, 18, 0)), False)
sketch8.addGeometry(Part.LineSegment(Vector(21, 18, 0), Vector(21, 3, 0)), False)
sketch8.addConstraint(Sketcher.Constraint("Coincident", 0, 2, 1, 1))
sketch8.addConstraint(Sketcher.Constraint("Coincident", 1, 2, 2, 1))
sketch8.addConstraint(Sketcher.Constraint("Coincident", 2, 2, 0, 1))
sketch8.addConstraint(Sketcher.Constraint("Coincident", 3, 2, 4, 1))
sketch8.addConstraint(Sketcher.Constraint("Coincident", 4, 2, 5, 1))
sketch8.addConstraint(Sketcher.Constraint("Coincident", 5, 2, 3, 1))
sketch8.addConstraint(Sketcher.Constraint("Vertical", 1))
sketch8.addConstraint(Sketcher.Constraint("Horizontal", 2))
sketch8.addConstraint(Sketcher.Constraint("Horizontal", 4))
sketch8.addConstraint(Sketcher.Constraint("Vertical", 5))
sketch8.addConstraint(Sketcher.Constraint("Symmetric", 2, 2, 3, 2, -2))
sketch8.addConstraint(Sketcher.Constraint("Symmetric", 0, 2, 5, 2, -2))
sketch8.addConstraint(Sketcher.Constraint("DistanceY", 1, 1, 1, 2, Q("15 mm")))
sketch8.addConstraint(Sketcher.Constraint("DistanceX", 0, 2, -1, 1, Q("21 mm")))
sketch8.addConstraint(Sketcher.Constraint("DistanceY", -1, 1, 0, 2, Q("3 mm")))
sketch8.addConstraint(Sketcher.Constraint("DistanceX", 2, 2, 2, 1, Q("9.417424 mm")))
sketch8.setExpression("Constraints[12]", "Params.sketch8_height")
pocket4 = doc.addObject("PartDesign::Pocket", "Pocket003")
body.addObject(pocket4)
pocket4.Profile = sketch8
pocket4.setExpression("Length", "Params.pocket4_length")

sketch9 = doc.addObject("Sketcher::SketchObject", "Sketch008")
body.addObject(sketch9)
sketch9.AttachmentSupport = (doc.YZ_Plane, [""])
sketch9.MapMode = "FlatFace"
sketch9.AttachmentOffset = App.Placement(Vector(0, 0, 33), App.Rotation())
sketch9.addGeometry(Part.LineSegment(Vector(3, -10, 0), Vector(18, -5, 0)), False)
sketch9.addGeometry(Part.LineSegment(Vector(18, -5, 0), Vector(18, -10, 0)), False)
sketch9.addGeometry(Part.LineSegment(Vector(18, -10, 0), Vector(3, -10, 0)), False)
sketch9.addGeometry(Part.LineSegment(Vector(18, 10, 0), Vector(18, 5, 0)), False)
sketch9.addGeometry(Part.LineSegment(Vector(18, 5, 0), Vector(3, 10, 0)), False)
sketch9.addGeometry(Part.LineSegment(Vector(3, 10, 0), Vector(18, 10, 0)), False)
sketch9.addConstraint(Sketcher.Constraint("Coincident", 0, 2, 1, 1))
sketch9.addConstraint(Sketcher.Constraint("Coincident", 1, 2, 2, 1))
sketch9.addConstraint(Sketcher.Constraint("Coincident", 2, 2, 0, 1))
sketch9.addConstraint(Sketcher.Constraint("Coincident", 3, 2, 4, 1))
sketch9.addConstraint(Sketcher.Constraint("Coincident", 4, 2, 5, 1))
sketch9.addConstraint(Sketcher.Constraint("Coincident", 5, 2, 3, 1))
sketch9.addConstraint(Sketcher.Constraint("Vertical", 1))
sketch9.addConstraint(Sketcher.Constraint("Horizontal", 2))
sketch9.addConstraint(Sketcher.Constraint("Vertical", 3))
sketch9.addConstraint(Sketcher.Constraint("Horizontal", 5))
sketch9.addConstraint(Sketcher.Constraint("Symmetric", 0, 2, 3, 2, -1))
sketch9.addConstraint(Sketcher.Constraint("Symmetric", 2, 2, 4, 2, -1))
sketch9.addConstraint(Sketcher.Constraint("DistanceX", 2, 2, 2, 1, Q("15 mm")))
sketch9.addConstraint(Sketcher.Constraint("DistanceX", -1, 1, 0, 2, Q("18 mm")))
sketch9.addConstraint(Sketcher.Constraint("DistanceY", 1, 2, -1, 1, Q("10 mm")))
sketch9.addConstraint(Sketcher.Constraint("DistanceY", 1, 2, 1, 1, Q("5.417424 mm")))
sketch9.setExpression("Constraints[12]", "Params.sketch9_width")
pocket5 = doc.addObject("PartDesign::Pocket", "Pocket004")
body.addObject(pocket5)
pocket5.Profile = sketch9
pocket5.setExpression("Length", "Params.pocket5_length")
pocket5.Reversed = True

sketch10 = doc.addObject("Sketcher::SketchObject", "Sketch009")
body.addObject(sketch10)
sketch10.AttachmentSupport = (doc.YZ_Plane, [""])
sketch10.MapMode = "FlatFace"
sketch10.AttachmentOffset = App.Placement(Vector(0, 0, -33), App.Rotation())
sketch10.addGeometry(Part.LineSegment(Vector(3, 10, 0), Vector(18, 5, 0)), False)
sketch10.addGeometry(Part.LineSegment(Vector(18, 5, 0), Vector(18, 10, 0)), False)
sketch10.addGeometry(Part.LineSegment(Vector(18, 10, 0), Vector(3, 10, 0)), False)
sketch10.addGeometry(Part.LineSegment(Vector(18, -5, 0), Vector(3, -10, 0)), False)
sketch10.addGeometry(Part.LineSegment(Vector(3, -10, 0), Vector(18, -10, 0)), False)
sketch10.addGeometry(Part.LineSegment(Vector(18, -10, 0), Vector(18, -5, 0)), False)
sketch10.addConstraint(Sketcher.Constraint("Coincident", 0, 2, 1, 1))
sketch10.addConstraint(Sketcher.Constraint("Coincident", 1, 2, 2, 1))
sketch10.addConstraint(Sketcher.Constraint("Coincident", 2, 2, 0, 1))
sketch10.addConstraint(Sketcher.Constraint("Coincident", 3, 2, 4, 1))
sketch10.addConstraint(Sketcher.Constraint("Coincident", 4, 2, 5, 1))
sketch10.addConstraint(Sketcher.Constraint("Coincident", 5, 2, 3, 1))
sketch10.addConstraint(Sketcher.Constraint("Vertical", 1))
sketch10.addConstraint(Sketcher.Constraint("Horizontal", 2))
sketch10.addConstraint(Sketcher.Constraint("Horizontal", 4))
sketch10.addConstraint(Sketcher.Constraint("Vertical", 5))
sketch10.addConstraint(Sketcher.Constraint("Symmetric", 2, 2, 3, 2, -1))
sketch10.addConstraint(Sketcher.Constraint("Symmetric", 0, 2, 5, 2, -1))
sketch10.addConstraint(Sketcher.Constraint("DistanceX", 2, 2, 2, 1, Q("15 mm")))
sketch10.addConstraint(Sketcher.Constraint("DistanceX", -1, 1, 0, 2, Q("18 mm")))
sketch10.addConstraint(Sketcher.Constraint("DistanceY", -1, 1, 1, 2, Q("10 mm")))
sketch10.addConstraint(Sketcher.Constraint("DistanceY", 1, 1, 1, 2, Q("5.417424 mm")))
sketch10.setExpression("Constraints[12]", "Params.sketch10_width")
pocket6 = doc.addObject("PartDesign::Pocket", "Pocket005")
body.addObject(pocket6)
pocket6.Profile = sketch10
pocket6.setExpression("Length", "Params.pocket6_length")

sketch11 = doc.addObject("Sketcher::SketchObject", "Sketch010")
body.addObject(sketch11)
sketch11.AttachmentSupport = (doc.XZ_Plane, [""])
sketch11.MapMode = "FlatFace"
sketch11.AttachmentOffset = App.Placement(Vector(0, 0, -3), App.Rotation())
sketch11.addGeometry(Part.LineSegment(Vector(-33, 4.6, 0), Vector(-33, 7.4, 0)), False)
sketch11.addGeometry(Part.LineSegment(Vector(-33, 7.4, 0), Vector(-7.4, 7.4, 0)), False)
sketch11.addGeometry(Part.LineSegment(Vector(-7.4, 7.4, 0), Vector(-7.4, 4.6, 0)), False)
sketch11.addGeometry(Part.LineSegment(Vector(-7.4, 4.6, 0), Vector(-33, 4.6, 0)), False)
sketch11.addGeometry(Part.LineSegment(Vector(-33, -7.4, 0), Vector(-33, -4.6, 0)), False)
sketch11.addGeometry(Part.LineSegment(Vector(-33, -4.6, 0), Vector(-7.4, -4.6, 0)), False)
sketch11.addGeometry(Part.LineSegment(Vector(-7.4, -4.6, 0), Vector(-7.4, -7.4, 0)), False)
sketch11.addGeometry(Part.LineSegment(Vector(-7.4, -7.4, 0), Vector(-33, -7.4, 0)), False)
sketch11.addGeometry(Part.LineSegment(Vector(7.4, -7.4, 0), Vector(7.4, -4.6, 0)), False)
sketch11.addGeometry(Part.LineSegment(Vector(7.4, -4.6, 0), Vector(33, -4.6, 0)), False)
sketch11.addGeometry(Part.LineSegment(Vector(33, -4.6, 0), Vector(33, -7.4, 0)), False)
sketch11.addGeometry(Part.LineSegment(Vector(33, -7.4, 0), Vector(7.4, -7.4, 0)), False)
sketch11.addGeometry(Part.LineSegment(Vector(7.4, 4.6, 0), Vector(7.4, 7.4, 0)), False)
sketch11.addGeometry(Part.LineSegment(Vector(7.4, 7.4, 0), Vector(33, 7.4, 0)), False)
sketch11.addGeometry(Part.LineSegment(Vector(33, 7.4, 0), Vector(33, 4.6, 0)), False)
sketch11.addGeometry(Part.LineSegment(Vector(33, 4.6, 0), Vector(7.4, 4.6, 0)), False)
sketch11.addConstraint(Sketcher.Constraint("Coincident", 0, 2, 1, 1))
sketch11.addConstraint(Sketcher.Constraint("Coincident", 1, 2, 2, 1))
sketch11.addConstraint(Sketcher.Constraint("Coincident", 2, 2, 3, 1))
sketch11.addConstraint(Sketcher.Constraint("Coincident", 3, 2, 0, 1))
sketch11.addConstraint(Sketcher.Constraint("Coincident", 4, 2, 5, 1))
sketch11.addConstraint(Sketcher.Constraint("Coincident", 5, 2, 6, 1))
sketch11.addConstraint(Sketcher.Constraint("Coincident", 6, 2, 7, 1))
sketch11.addConstraint(Sketcher.Constraint("Coincident", 7, 2, 4, 1))
sketch11.addConstraint(Sketcher.Constraint("Coincident", 8, 2, 9, 1))
sketch11.addConstraint(Sketcher.Constraint("Coincident", 9, 2, 10, 1))
sketch11.addConstraint(Sketcher.Constraint("Coincident", 10, 2, 11, 1))
sketch11.addConstraint(Sketcher.Constraint("Coincident", 11, 2, 8, 1))
sketch11.addConstraint(Sketcher.Constraint("Coincident", 12, 2, 13, 1))
sketch11.addConstraint(Sketcher.Constraint("Coincident", 13, 2, 14, 1))
sketch11.addConstraint(Sketcher.Constraint("Coincident", 14, 2, 15, 1))
sketch11.addConstraint(Sketcher.Constraint("Coincident", 15, 2, 12, 1))
sketch11.addConstraint(Sketcher.Constraint("Vertical", 0))
sketch11.addConstraint(Sketcher.Constraint("Horizontal", 1))
sketch11.addConstraint(Sketcher.Constraint("Vertical", 2))
sketch11.addConstraint(Sketcher.Constraint("Horizontal", 3))
sketch11.addConstraint(Sketcher.Constraint("Vertical", 4))
sketch11.addConstraint(Sketcher.Constraint("Horizontal", 5))
sketch11.addConstraint(Sketcher.Constraint("Vertical", 6))
sketch11.addConstraint(Sketcher.Constraint("Horizontal", 7))
sketch11.addConstraint(Sketcher.Constraint("Vertical", 8))
sketch11.addConstraint(Sketcher.Constraint("Horizontal", 9))
sketch11.addConstraint(Sketcher.Constraint("Vertical", 10))
sketch11.addConstraint(Sketcher.Constraint("Horizontal", 11))
sketch11.addConstraint(Sketcher.Constraint("Vertical", 12))
sketch11.addConstraint(Sketcher.Constraint("Horizontal", 13))
sketch11.addConstraint(Sketcher.Constraint("Vertical", 14))
sketch11.addConstraint(Sketcher.Constraint("Horizontal", 15))
sketch11.addConstraint(Sketcher.Constraint("Symmetric", 2, 2, 8, 2, -1, 1))
sketch11.addConstraint(Sketcher.Constraint("Symmetric", 0, 2, 10, 2, -1, 1))
sketch11.addConstraint(Sketcher.Constraint("Symmetric", 6, 2, 12, 2, -1, 1))
sketch11.addConstraint(Sketcher.Constraint("Symmetric", 4, 2, 14, 2, -1, 1))
sketch11.addConstraint(Sketcher.Constraint("Symmetric", 5, 2, 8, 2, -2))
sketch11.addConstraint(Sketcher.Constraint("Symmetric", 7, 2, 10, 2, -2))
sketch11.addConstraint(Sketcher.Constraint("DistanceX", 0, 2, -1, 1, Q("33 mm")))
sketch11.addConstraint(Sketcher.Constraint("DistanceX", 1, 1, 1, 2, Q("25.575379 mm")))
sketch11.addConstraint(Sketcher.Constraint("DistanceY", 0, 1, 0, 2, Q("2.842046 mm")))
sketch11.addConstraint(Sketcher.Constraint("DistanceY", -1, 1, 0, 2, Q("7.424621 mm")))
pad5 = doc.addObject("PartDesign::Pad", "Pad004")
body.addObject(pad5)
pad5.Profile = sketch11
pad5.setExpression("Length", "Params.pad5_length")
pad5.Reversed = True

doc.recompute()
